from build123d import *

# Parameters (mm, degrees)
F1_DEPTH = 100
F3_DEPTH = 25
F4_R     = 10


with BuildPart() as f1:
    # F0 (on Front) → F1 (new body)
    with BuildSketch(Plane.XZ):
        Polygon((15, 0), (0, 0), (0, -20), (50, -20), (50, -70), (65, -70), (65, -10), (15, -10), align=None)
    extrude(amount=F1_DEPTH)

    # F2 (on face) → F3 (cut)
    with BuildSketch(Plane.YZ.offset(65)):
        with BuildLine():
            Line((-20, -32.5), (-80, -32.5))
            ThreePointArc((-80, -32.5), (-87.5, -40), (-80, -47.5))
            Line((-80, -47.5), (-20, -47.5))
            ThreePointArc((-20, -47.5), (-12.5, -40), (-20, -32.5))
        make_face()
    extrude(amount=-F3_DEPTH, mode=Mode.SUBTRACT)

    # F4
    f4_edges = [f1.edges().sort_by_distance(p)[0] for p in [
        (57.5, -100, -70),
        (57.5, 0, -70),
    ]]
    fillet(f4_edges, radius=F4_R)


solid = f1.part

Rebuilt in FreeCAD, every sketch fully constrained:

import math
import FreeCAD as App
import Part
import Sketcher

V = App.Vector


def edges_at(feature, points):
    """Names of the edges that pass closest to the given points."""
    edges = feature.Shape.Edges
    near = lambda p: min(range(len(edges)), key=lambda i: edges[i].distToShape(Part.Vertex(*p))[0])
    return sorted({f"Edge{near(p) + 1}" for p in points})

doc = App.newDocument("Part")
params = doc.addObject("Spreadsheet::Sheet", "Params")
for row, (alias, value) in enumerate([
    ("sketch1_width", "15 mm"),
    ("sketch1_width2", "50 mm"),
    ("sketch1_height", "20 mm"),
    ("sketch1_height2", "60 mm"),
    ("pad1_length", "100 mm"),
    ("sketch2_radius", "7.5 mm"),
    ("sketch2_width", "60 mm"),
    ("pocket1_length", "25 mm"),
    ("fillet_radius", "10 mm"),
], start=1):
    params.set(f"A{row}", alias)
    params.set(f"B{row}", "=" + value)
    params.setAlias(f"B{row}", alias)

body = doc.addObject("PartDesign::Body", "Body")

# Sketch on XZ plane
sketch1 = doc.addObject("Sketcher::SketchObject", "Sketch")
body.addObject(sketch1)
sketch1.AttachmentSupport = (doc.XZ_Plane, [""])
sketch1.MapMode = "FlatFace"
sketch1.addGeometry([
    Part.LineSegment(V(15, 0, 0), V(0, 0, 0)),  # 0
    Part.LineSegment(V(0, 0, 0), V(0, -20, 0)),  # 1
    Part.LineSegment(V(0, -20, 0), V(50, -20, 0)),  # 2
    Part.LineSegment(V(50, -20, 0), V(50, -70, 0)),  # 3
    Part.LineSegment(V(50, -70, 0), V(65, -70, 0)),  # 4
    Part.LineSegment(V(65, -70, 0), V(65, -10, 0)),  # 5
    Part.LineSegment(V(65, -10, 0), V(15, -10, 0)),  # 6
    Part.LineSegment(V(15, -10, 0), V(15, 0, 0)),  # 7
], False)
sketch1.addConstraint([
    Sketcher.Constraint("Coincident", 0, 2, 1, 1),
    Sketcher.Constraint("Coincident", 1, 2, 2, 1),
    Sketcher.Constraint("Coincident", 2, 2, 3, 1),
    Sketcher.Constraint("Coincident", 3, 2, 4, 1),
    Sketcher.Constraint("Coincident", 4, 2, 5, 1),
    Sketcher.Constraint("Coincident", 5, 2, 6, 1),
    Sketcher.Constraint("Coincident", 6, 2, 7, 1),
    Sketcher.Constraint("Coincident", 7, 2, 0, 1),
    Sketcher.Constraint("Horizontal", 0),
    Sketcher.Constraint("Vertical", 1),
    Sketcher.Constraint("Horizontal", 2),
    Sketcher.Constraint("Vertical", 3),
    Sketcher.Constraint("Horizontal", 4),
    Sketcher.Constraint("Vertical", 5),
    Sketcher.Constraint("Horizontal", 6),
    Sketcher.Constraint("Vertical", 7),
    Sketcher.Constraint("Coincident", 0, 2, -1, 1),
    Sketcher.Constraint("Equal", 0, 4),
    Sketcher.Constraint("Equal", 6, 3),
    Sketcher.Constraint("DistanceX", 0, 2, 0, 1, 15.0),
    Sketcher.Constraint("DistanceX", 2, 1, 2, 2, 50.0),
    Sketcher.Constraint("DistanceY", 1, 2, 1, 1, 20.0),
    Sketcher.Constraint("DistanceY", 5, 1, 5, 2, 60.0),
])
sketch1.setExpression("Constraints[19]", "Params.sketch1_width")
sketch1.setExpression("Constraints[20]", "Params.sketch1_width2")
sketch1.setExpression("Constraints[21]", "Params.sketch1_height")
sketch1.setExpression("Constraints[22]", "Params.sketch1_height2")
pad1 = doc.addObject("PartDesign::Pad", "Pad")
body.addObject(pad1)
pad1.Profile = sketch1
pad1.setExpression("Length", "Params.pad1_length")

# Sketch on YZ plane
sketch2 = doc.addObject("Sketcher::SketchObject", "Sketch001")
body.addObject(sketch2)
sketch2.AttachmentSupport = (doc.YZ_Plane, [""])
sketch2.MapMode = "FlatFace"
sketch2.AttachmentOffset = App.Placement(V(0, 0, 65), App.Rotation())
sketch2.addGeometry([
    Part.LineSegment(V(-20, -32, 0), V(-80, -32, 0)),
    Part.ArcOfCircle(Part.Circle(V(-80, -40, 0), V(0, 0, 1), 8), math.radians(90), math.radians(270)),
    Part.LineSegment(V(-80, -48, 0), V(-20, -48, 0)),
    Part.ArcOfCircle(Part.Circle(V(-20, -40, 0), V(0, 0, 1), 8), math.radians(-90), math.radians(90)),
], False)
sketch2.addConstraint([
    Sketcher.Constraint("Tangent", 0, 2, 1, 1),
    Sketcher.Constraint("Tangent", 1, 2, 2, 1),
    Sketcher.Constraint("Tangent", 2, 2, 3, 1),
    Sketcher.Constraint("Tangent", 3, 2, 0, 1),
    Sketcher.Constraint("Horizontal", 0),
    Sketcher.Constraint("Horizontal", 2),
    Sketcher.Constraint("Radius", 1, 7.5),
    Sketcher.Constraint("DistanceX", 0, 2, 0, 1, 60.0),
    Sketcher.Constraint("DistanceX", 1, 3, -1, 1, 80.0),
    Sketcher.Constraint("DistanceY", 1, 3, -1, 1, 40.0),
])
sketch2.setExpression("Constraints[6]", "Params.sketch2_radius")
sketch2.setExpression("Constraints[7]", "Params.sketch2_width")
pocket1 = doc.addObject("PartDesign::Pocket", "Pocket")
body.addObject(pocket1)
pocket1.Profile = sketch2
pocket1.setExpression("Length", "Params.pocket1_length")
doc.recompute()

fillet = doc.addObject("PartDesign::Fillet", "Fillet")
body.addObject(fillet)
fillet.Base = (pocket1, edges_at(pocket1, [(57.5, -100, -70), (57.5, 0, -70)]))
fillet.setExpression("Radius", "Params.fillet_radius")

doc.recompute()
